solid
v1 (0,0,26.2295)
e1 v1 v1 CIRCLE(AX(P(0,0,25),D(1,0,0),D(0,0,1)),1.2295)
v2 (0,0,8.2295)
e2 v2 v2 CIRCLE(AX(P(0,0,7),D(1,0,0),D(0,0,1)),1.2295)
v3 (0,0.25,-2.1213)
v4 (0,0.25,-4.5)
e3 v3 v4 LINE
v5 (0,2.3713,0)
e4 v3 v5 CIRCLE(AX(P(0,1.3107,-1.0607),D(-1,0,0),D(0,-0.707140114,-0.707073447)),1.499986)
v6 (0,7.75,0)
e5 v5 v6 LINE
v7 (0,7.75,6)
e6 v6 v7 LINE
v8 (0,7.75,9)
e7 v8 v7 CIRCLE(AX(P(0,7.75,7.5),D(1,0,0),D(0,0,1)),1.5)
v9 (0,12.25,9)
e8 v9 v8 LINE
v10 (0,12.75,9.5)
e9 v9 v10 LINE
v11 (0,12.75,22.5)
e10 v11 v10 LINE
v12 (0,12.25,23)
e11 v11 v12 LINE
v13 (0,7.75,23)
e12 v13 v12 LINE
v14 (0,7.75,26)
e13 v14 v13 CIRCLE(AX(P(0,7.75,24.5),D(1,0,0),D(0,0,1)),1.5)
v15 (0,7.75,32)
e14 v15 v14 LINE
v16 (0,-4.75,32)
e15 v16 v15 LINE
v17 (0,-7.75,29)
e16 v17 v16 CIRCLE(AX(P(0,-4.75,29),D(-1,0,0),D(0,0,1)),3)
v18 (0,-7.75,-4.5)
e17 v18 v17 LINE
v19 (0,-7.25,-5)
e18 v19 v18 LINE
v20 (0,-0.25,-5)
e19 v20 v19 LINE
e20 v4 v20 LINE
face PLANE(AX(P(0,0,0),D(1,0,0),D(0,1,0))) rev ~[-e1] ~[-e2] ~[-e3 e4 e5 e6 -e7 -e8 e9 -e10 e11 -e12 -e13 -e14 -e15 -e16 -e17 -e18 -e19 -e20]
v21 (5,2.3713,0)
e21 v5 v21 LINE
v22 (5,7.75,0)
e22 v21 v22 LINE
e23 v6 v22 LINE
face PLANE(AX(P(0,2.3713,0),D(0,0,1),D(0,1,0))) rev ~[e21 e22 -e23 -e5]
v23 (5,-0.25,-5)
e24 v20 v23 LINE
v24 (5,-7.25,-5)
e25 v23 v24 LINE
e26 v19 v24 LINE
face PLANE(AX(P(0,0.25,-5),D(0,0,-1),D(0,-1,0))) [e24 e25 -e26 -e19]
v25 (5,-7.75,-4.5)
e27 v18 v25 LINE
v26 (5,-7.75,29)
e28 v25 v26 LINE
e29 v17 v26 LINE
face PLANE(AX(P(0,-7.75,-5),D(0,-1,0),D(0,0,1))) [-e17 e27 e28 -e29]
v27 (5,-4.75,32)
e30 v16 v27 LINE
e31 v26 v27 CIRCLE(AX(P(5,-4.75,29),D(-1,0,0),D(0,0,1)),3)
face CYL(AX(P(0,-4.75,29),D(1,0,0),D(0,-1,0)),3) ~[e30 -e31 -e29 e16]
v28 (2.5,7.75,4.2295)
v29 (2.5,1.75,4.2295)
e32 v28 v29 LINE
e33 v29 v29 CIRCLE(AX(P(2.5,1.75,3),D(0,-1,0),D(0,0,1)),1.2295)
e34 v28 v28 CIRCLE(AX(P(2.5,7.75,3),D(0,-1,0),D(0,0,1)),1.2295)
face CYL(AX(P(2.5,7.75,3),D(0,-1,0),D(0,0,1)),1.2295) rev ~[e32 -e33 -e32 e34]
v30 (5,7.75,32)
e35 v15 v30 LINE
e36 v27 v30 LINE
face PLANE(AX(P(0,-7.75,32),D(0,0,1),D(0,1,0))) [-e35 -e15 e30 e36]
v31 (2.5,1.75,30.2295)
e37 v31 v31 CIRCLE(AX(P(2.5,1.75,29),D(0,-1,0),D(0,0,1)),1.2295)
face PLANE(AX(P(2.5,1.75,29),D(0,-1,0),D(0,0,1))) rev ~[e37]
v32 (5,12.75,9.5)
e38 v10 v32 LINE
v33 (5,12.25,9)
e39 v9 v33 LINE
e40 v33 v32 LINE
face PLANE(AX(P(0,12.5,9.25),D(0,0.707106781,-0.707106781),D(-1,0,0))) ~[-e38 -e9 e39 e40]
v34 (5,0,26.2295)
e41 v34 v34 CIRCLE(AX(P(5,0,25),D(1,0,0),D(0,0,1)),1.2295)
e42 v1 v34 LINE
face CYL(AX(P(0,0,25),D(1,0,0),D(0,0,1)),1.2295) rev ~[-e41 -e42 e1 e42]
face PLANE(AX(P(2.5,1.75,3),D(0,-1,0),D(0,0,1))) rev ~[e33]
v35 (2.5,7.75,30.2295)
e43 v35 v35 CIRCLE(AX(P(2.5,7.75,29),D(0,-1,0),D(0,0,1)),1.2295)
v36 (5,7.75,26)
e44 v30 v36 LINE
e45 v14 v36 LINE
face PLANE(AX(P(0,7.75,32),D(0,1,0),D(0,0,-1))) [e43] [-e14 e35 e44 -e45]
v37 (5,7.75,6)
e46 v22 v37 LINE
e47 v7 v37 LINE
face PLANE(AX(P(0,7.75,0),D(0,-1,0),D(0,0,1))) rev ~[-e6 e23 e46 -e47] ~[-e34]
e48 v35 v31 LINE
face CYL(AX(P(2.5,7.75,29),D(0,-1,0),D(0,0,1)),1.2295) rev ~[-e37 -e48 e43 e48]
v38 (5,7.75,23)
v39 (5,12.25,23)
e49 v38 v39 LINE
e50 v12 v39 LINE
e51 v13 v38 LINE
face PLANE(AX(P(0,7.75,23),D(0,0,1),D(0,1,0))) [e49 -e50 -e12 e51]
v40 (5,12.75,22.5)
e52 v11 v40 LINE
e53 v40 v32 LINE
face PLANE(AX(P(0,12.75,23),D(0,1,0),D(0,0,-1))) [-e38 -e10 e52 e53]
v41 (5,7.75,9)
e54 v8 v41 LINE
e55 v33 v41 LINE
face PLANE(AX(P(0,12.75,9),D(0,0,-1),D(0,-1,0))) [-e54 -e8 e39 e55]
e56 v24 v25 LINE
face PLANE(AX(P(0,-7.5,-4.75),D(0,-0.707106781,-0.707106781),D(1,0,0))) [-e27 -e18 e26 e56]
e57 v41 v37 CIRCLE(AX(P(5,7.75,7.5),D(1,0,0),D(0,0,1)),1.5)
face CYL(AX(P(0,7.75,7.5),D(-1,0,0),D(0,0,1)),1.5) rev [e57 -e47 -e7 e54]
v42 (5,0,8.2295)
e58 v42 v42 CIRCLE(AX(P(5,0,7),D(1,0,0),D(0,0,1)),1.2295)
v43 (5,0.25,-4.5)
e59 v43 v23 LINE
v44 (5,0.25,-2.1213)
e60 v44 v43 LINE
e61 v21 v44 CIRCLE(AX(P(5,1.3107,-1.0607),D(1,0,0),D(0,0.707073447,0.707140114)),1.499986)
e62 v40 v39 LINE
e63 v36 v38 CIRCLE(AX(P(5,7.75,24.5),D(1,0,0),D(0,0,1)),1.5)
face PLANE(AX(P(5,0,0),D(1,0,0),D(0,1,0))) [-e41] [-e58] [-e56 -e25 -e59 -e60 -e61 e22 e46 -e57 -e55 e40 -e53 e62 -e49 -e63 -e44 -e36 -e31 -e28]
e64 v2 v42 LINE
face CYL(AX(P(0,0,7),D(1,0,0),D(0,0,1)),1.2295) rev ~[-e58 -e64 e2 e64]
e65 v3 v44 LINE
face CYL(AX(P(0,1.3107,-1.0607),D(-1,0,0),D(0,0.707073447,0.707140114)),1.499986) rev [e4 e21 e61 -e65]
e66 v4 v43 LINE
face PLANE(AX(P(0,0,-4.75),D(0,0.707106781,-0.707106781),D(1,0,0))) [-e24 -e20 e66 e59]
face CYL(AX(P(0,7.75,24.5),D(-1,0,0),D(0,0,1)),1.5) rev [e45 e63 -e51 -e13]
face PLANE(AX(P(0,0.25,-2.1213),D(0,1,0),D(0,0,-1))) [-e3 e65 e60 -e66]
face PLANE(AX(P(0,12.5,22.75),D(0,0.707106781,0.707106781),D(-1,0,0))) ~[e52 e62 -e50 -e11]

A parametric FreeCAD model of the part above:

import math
import FreeCAD as App
import Part
import Sketcher

V = App.Vector
Q = App.Units.Quantity


def edges_at(feature, points):
    """Names of the edges that pass closest to the given points."""
    edges = feature.Shape.Edges
    near = lambda p: min(range(len(edges)), key=lambda i: edges[i].distToShape(Part.Vertex(*p))[0])
    return sorted({f"Edge{near(p) + 1}" for p in points})

doc = App.newDocument("Part")
body = doc.addObject("PartDesign::Body", "Body")

# Sketch on YZ plane
sketch1 = body.newObject("Sketcher::SketchObject", "Sketch")
sketch1.AttachmentSupport = (doc.getObject("YZ_Plane"), [""])
sketch1.MapMode = "FlatFace"
sketch1.addGeometry([
    Part.ArcOfCircle(Part.Circle(V(1.3, -1.1, 0), V(0, 0, 1), 1.5), math.radians(45), math.radians(225)),  # 0
    Part.LineSegment(V(2.4, 0, 0), V(7.8, 0, 0)),  # 1
    Part.LineSegment(V(7.8, 0, 0), V(7.8, 6, 0)),  # 2
    Part.ArcOfCircle(Part.Circle(V(7.8, 7.5, 0), V(0, 0, 1), 1.5), math.radians(90), math.radians(270)),  # 3
    Part.LineSegment(V(7.8, 9, 0), V(12.8, 9, 0)),  # 4
    Part.LineSegment(V(12.8, 9, 0), V(12.8, 23, 0)),  # 5
    Part.LineSegment(V(12.8, 23, 0), V(7.8, 23, 0)),  # 6
    Part.ArcOfCircle(Part.Circle(V(7.8, 24.5, 0), V(0, 0, 1), 1.5), math.radians(90), math.radians(270)),  # 7
    Part.LineSegment(V(7.8, 26, 0), V(7.8, 32, 0)),  # 8
    Part.LineSegment(V(7.8, 32, 0), V(-7.8, 32, 0)),  # 9
    Part.LineSegment(V(-7.8, 32, 0), V(-7.8, -5, 0)),  # 10
    Part.LineSegment(V(-7.8, -5, 0), V(0.2, -5, 0)),  # 11
    Part.LineSegment(V(0.2, -5, 0), V(0.2, -2.1, 0)),  # 12
], False)
sketch1.addConstraint([
    Sketcher.Constraint("Coincident", 0, 1, 1, 1),
    Sketcher.Constraint("Coincident", 1, 2, 2, 1),
    Sketcher.Constraint("Coincident", 2, 2, 3, 2),
    Sketcher.Constraint("Tangent", 3, 1, 4, 1),
    Sketcher.Constraint("Coincident", 4, 2, 5, 1),
    Sketcher.Constraint("Coincident", 5, 2, 6, 1),
    Sketcher.Constraint("Tangent", 6, 2, 7, 2),
    Sketcher.Constraint("Coincident", 7, 1, 8, 1),
    Sketcher.Constraint("Coincident", 8, 2, 9, 1),
    Sketcher.Constraint("Coincident", 9, 2, 10, 1),
    Sketcher.Constraint("Coincident", 10, 2, 11, 1),
    Sketcher.Constraint("Coincident", 11, 2, 12, 1),
    Sketcher.Constraint("Coincident", 12, 2, 0, 2),
    Sketcher.Constraint("Horizontal", 1),
    Sketcher.Constraint("Vertical", 2),
    Sketcher.Constraint("Horizontal", 4),
    Sketcher.Constraint("Vertical", 5),
    Sketcher.Constraint("Horizontal", 6),
    Sketcher.Constraint("Vertical", 8),
    Sketcher.Constraint("Horizontal", 9),
    Sketcher.Constraint("Vertical", 10),
    Sketcher.Constraint("Horizontal", 11),
    Sketcher.Constraint("Vertical", 12),
    Sketcher.Constraint("Equal", 0, 3),
    Sketcher.Constraint("Equal", 3, 7),
    Sketcher.Constraint("PointOnObject", 0, 1, -1),
    Sketcher.Constraint("Vertical", 3, 3, 7, 3),
    Sketcher.Constraint("Vertical", 7, 3, 1, 2),
    Sketcher.Constraint("Vertical", 6, 2, 7, 1),
    Sketcher.Constraint("Equal", 2, 8),
    Sketcher.Constraint("Radius", 0, Q("1.5 mm")),
    Sketcher.Constraint("DistanceX", 4, 1, 4, 2, Q("5 mm")),
    Sketcher.Constraint("DistanceX", 11, 1, 11, 2, Q("8 mm")),
    Sketcher.Constraint("DistanceY", 2, 1, 2, 2, Q("6 mm")),
    Sketcher.Constraint("DistanceY", 5, 1, 5, 2, Q("14 mm")),
    Sketcher.Constraint("DistanceX", 9, 2, 9, 1, Q("15.5 mm")),
    Sketcher.Constraint("DistanceY", 10, 2, -1, 1, Q("5 mm")),
    Sketcher.Constraint("DistanceX", -1, 1, 3, 3, Q("7.75 mm")),
    Sketcher.Constraint("DistanceX", 1, 1, 1, 2, Q("5.3787 mm")),
    Sketcher.Constraint("DistanceX", -1, 1, 0, 3, Q("1.3107 mm")),
])
pad1 = body.newObject("PartDesign::Pad", "Pad")
pad1.Profile = sketch1
pad1.Length = 5

# Sketch on XZ plane
sketch2 = body.newObject("Sketcher::SketchObject", "Sketch001")
sketch2.AttachmentSupport = (doc.getObject("XZ_Plane"), [""])
sketch2.MapMode = "FlatFace"
sketch2.AttachmentOffset = App.Placement(V(0, 0, -7.75), App.Rotation())
sketch2.addGeometry([
    Part.Circle(V(2.5, 3, 0), V(0, 0, 1), 1.2),
    Part.Circle(V(2.5, 29, 0), V(0, 0, 1), 1.2),
], False)
sketch2.addConstraint([
    Sketcher.Constraint("Equal", 0, 1),
    Sketcher.Constraint("Vertical", 0, 3, 1, 3),
    Sketcher.Constraint("Diameter", 0, Q("2.459 mm")),
    Sketcher.Constraint("DistanceY", -1, 1, 0, 3, Q("3 mm")),
    Sketcher.Constraint("DistanceY", -1, 1, 1, 3, Q("29 mm")),
    Sketcher.Constraint("DistanceX", -1, 1, 0, 3, Q("2.5 mm")),
])
doc.recompute()
hole = body.newObject("PartDesign::Hole", "Hole")
hole.Profile = sketch2
hole.ThreadType = "None"
hole.Diameter = 2.459
hole.DepthType = "Dimension"
hole.Depth = 6
hole.DrillPoint = "Flat"
hole.Reversed = True

# Sketch on YZ plane
sketch3 = body.newObject("Sketcher::SketchObject", "Sketch002")
sketch3.AttachmentSupport = (doc.getObject("YZ_Plane"), [""])
sketch3.MapMode = "FlatFace"
sketch3.addGeometry([
    Part.Circle(V(0, 25, 0), V(0, 0, 1), 1.2),
    Part.Circle(V(0, 7, 0), V(0, 0, 1), 1.2),
], False)
sketch3.addConstraint([
    Sketcher.Constraint("Equal", 0, 1),
    Sketcher.Constraint("PointOnObject", 0, 3, -2),
    Sketcher.Constraint("PointOnObject", 1, 3, -2),
    Sketcher.Constraint("Diameter", 0, Q("2.459 mm")),
    Sketcher.Constraint("DistanceY", -1, 1, 0, 3, Q("25 mm")),
    Sketcher.Constraint("DistanceY", -1, 1, 1, 3, Q("7 mm")),
])
doc.recompute()
hole2 = body.newObject("PartDesign::Hole", "Hole001")
hole2.Profile = sketch3
hole2.ThreadType = "None"
hole2.Diameter = 2.459
hole2.DepthType = "ThroughAll"
hole2.Reversed = True
doc.recompute()

chamfer = body.newObject("PartDesign::Chamfer", "Chamfer")
chamfer.Base = (hole2, edges_at(hole2, [
    (2.5, -7.75, -5),
    (2.5, 0.25, -5),
    (2.5, 12.75, 9),
    (2.5, 12.75, 23),
]))
chamfer.Size = 0.5
doc.recompute()

fillet = body.newObject("PartDesign::Fillet", "Fillet")
fillet.Base = (chamfer, edges_at(chamfer, [(2.5, -7.75, 32)]))
fillet.Radius = 3

doc.recompute()
